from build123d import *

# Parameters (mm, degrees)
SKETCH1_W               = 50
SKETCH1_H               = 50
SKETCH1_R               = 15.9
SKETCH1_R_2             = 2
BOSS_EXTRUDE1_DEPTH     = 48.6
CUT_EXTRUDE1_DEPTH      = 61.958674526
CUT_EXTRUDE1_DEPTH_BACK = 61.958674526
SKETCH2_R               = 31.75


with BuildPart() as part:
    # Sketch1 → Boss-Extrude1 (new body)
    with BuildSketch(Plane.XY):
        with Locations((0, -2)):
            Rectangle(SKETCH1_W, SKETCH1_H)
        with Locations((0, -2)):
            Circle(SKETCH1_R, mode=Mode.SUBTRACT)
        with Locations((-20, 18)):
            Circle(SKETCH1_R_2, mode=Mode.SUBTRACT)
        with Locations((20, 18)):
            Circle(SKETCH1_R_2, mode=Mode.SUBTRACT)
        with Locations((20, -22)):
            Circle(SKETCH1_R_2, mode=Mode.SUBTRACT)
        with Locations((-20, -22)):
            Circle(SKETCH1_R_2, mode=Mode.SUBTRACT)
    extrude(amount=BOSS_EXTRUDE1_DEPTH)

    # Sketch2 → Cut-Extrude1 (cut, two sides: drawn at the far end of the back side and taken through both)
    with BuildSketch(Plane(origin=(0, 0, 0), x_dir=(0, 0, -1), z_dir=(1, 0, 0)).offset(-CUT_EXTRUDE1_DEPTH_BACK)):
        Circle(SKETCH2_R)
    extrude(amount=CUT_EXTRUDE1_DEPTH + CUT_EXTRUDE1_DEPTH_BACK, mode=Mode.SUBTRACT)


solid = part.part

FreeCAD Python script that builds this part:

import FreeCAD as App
import Part
import Sketcher


def add_polygon(sketch, points):
    """Adds a closed chain of lines whose ends are joined by coincident constraints."""
    first, n = sketch.GeometryCount, len(points)
    for a, b in zip(points, points[1:] + points[:1]):
        sketch.addGeometry(Part.LineSegment(App.Vector(*a, 0), App.Vector(*b, 0)), False)
    for i in range(n):
        sketch.addConstraint(Sketcher.Constraint("Coincident", first + i, 2, first + (i + 1) % n, 1))

doc = App.newDocument("Part")
body = doc.addObject("PartDesign::Body", "Body")

# Sketch on XY plane
sketch1 = body.newObject("Sketcher::SketchObject", "Sketch")
sketch1.AttachmentSupport = (doc.getObject("XY_Plane"), [""])
sketch1.MapMode = "FlatFace"
add_polygon(sketch1, [(-25, 23), (-25, -27), (25, -27), (25, 23)])  # lines 0-3
sketch1.addGeometry(Part.Circle(App.Vector(-20, -22, 0), App.Vector(0, 0, 1), 2), False)  # 4
sketch1.addGeometry(Part.Circle(App.Vector(20, -22, 0), App.Vector(0, 0, 1), 2), False)  # 5
sketch1.addGeometry(Part.Circle(App.Vector(-20, 18, 0), App.Vector(0, 0, 1), 2), False)  # 6
sketch1.addGeometry(Part.Circle(App.Vector(0, -2, 0), App.Vector(0, 0, 1), 15.9), False)  # 7
sketch1.addGeometry(Part.Circle(App.Vector(20, 18, 0), App.Vector(0, 0, 1), 2), False)  # 8
sketch1.addConstraint(Sketcher.Constraint("Vertical", 0))
sketch1.addConstraint(Sketcher.Constraint("Horizontal", 1))
sketch1.addConstraint(Sketcher.Constraint("Vertical", 2))
sketch1.addConstraint(Sketcher.Constraint("Horizontal", 3))
sketch1.addConstraint(Sketcher.Constraint("Equal", 4, 5))
sketch1.addConstraint(Sketcher.Constraint("Equal", 5, 6))
sketch1.addConstraint(Sketcher.Constraint("Equal", 6, 8))
sketch1.addConstraint(Sketcher.Constraint("Symmetric", 4, 3, 5, 3, -2))
sketch1.addConstraint(Sketcher.Constraint("Symmetric", 6, 3, 8, 3, -2))
sketch1.addConstraint(Sketcher.Constraint("PointOnObject", 7, 3, -2))
sketch1.addConstraint(Sketcher.Constraint("Vertical", 4, 3, 6, 3))
sketch1.addConstraint(Sketcher.Constraint("Equal", 3, 0))
sketch1.addConstraint(Sketcher.Constraint("Diameter", 4, 4.0))
sketch1.addConstraint(Sketcher.Constraint("Diameter", 7, 31.8))
sketch1.addConstraint(Sketcher.Constraint("DistanceX", 1, 1, 1, 2, 50.0))
sketch1.addConstraint(Sketcher.Constraint("DistanceX", 4, 3, -1, 1, 20.0))
sketch1.addConstraint(Sketcher.Constraint("DistanceY", 4, 3, -1, 1, 22.0))
sketch1.addConstraint(Sketcher.Constraint("DistanceY", -1, 1, 6, 3, 18.0))
sketch1.addConstraint(Sketcher.Constraint("DistanceY", 7, 3, -1, 1, 2.0))
sketch1.addConstraint(Sketcher.Constraint("DistanceX", 0, 2, -1, 1, 25.0))
sketch1.addConstraint(Sketcher.Constraint("DistanceY", 0, 2, -1, 1, 27.0))
pad1 = body.newObject("PartDesign::Pad", "Pad")
pad1.Profile = sketch1
pad1.Length = 48.6

# Sketch on YZ plane
sketch2 = body.newObject("Sketcher::SketchObject", "Sketch001")
sketch2.AttachmentSupport = (doc.getObject("YZ_Plane"), [""])
sketch2.MapMode = "FlatFace"
sketch2.addGeometry(Part.Circle(App.Vector(0, 0, 0), App.Vector(0, 0, 1), 32), False)
sketch2.addConstraint(Sketcher.Constraint("Coincident", 0, 3, -1, 1))
sketch2.addConstraint(Sketcher.Constraint("Diameter", 0, 63.5))
pocket1 = body.newObject("PartDesign::Pocket", "Pocket")
pocket1.Profile = sketch2
pocket1.Type = "ThroughAll"
pocket1.Midplane = True

doc.recompute()
